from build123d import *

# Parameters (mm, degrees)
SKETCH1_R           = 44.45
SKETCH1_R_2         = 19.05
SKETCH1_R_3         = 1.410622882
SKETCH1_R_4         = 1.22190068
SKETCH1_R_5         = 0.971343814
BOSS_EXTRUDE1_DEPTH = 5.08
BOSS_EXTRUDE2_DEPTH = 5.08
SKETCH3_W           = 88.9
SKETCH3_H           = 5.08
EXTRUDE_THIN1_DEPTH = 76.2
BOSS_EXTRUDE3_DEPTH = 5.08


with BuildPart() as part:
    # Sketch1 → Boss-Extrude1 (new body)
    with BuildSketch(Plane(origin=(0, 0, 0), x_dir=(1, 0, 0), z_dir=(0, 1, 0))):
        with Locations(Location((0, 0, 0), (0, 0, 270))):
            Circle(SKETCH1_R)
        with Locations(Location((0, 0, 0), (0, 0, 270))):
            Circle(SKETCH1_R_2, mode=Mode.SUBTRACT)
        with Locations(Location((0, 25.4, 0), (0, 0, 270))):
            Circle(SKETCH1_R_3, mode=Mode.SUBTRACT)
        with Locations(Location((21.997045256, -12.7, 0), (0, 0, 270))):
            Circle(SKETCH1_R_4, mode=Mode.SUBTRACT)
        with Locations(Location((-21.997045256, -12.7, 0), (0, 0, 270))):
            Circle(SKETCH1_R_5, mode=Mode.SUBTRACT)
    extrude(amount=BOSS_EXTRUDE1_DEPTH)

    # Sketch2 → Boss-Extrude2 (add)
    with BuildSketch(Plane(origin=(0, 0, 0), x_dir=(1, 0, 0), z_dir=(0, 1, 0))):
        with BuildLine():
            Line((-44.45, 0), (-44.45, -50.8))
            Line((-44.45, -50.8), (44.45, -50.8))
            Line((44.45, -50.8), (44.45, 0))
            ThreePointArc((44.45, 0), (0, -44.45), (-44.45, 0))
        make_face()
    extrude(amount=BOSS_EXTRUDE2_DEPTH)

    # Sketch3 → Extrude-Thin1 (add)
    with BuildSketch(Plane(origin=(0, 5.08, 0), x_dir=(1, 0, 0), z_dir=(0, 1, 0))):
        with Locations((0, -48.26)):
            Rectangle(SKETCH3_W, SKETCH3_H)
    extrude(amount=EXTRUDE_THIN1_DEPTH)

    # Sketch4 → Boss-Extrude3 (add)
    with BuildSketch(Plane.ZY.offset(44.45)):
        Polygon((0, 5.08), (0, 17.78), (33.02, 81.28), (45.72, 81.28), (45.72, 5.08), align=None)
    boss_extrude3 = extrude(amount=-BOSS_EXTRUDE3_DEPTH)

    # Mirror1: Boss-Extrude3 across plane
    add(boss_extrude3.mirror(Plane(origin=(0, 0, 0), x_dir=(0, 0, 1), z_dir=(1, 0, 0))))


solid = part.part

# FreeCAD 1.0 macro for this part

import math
import FreeCAD as App
import Part
import Sketcher
Q = App.Units.Quantity


def add_polygon(sketch, points):
    """Adds a closed chain of lines whose ends are joined by coincident constraints."""
    first, n = sketch.GeometryCount, len(points)
    for a, b in zip(points, points[1:] + points[:1]):
        sketch.addGeometry(Part.LineSegment(App.Vector(*a, 0), App.Vector(*b, 0)), False)
    for i in range(n):
        sketch.addConstraint(Sketcher.Constraint("Coincident", first + i, 2, first + (i + 1) % n, 1))

doc = App.newDocument("Part")
params = doc.addObject("Spreadsheet::Sheet", "Params")
for row, (alias, value) in enumerate([
    ("sketch1_diameter", "3.5 in"),
    ("sketch1_diameter2", "1.5 in"),
    ("pad1_length", "0.2 in"),
    ("sketch2_height", "2 in"),
    ("sketch2_radius", "1.75 in"),
    ("pad2_length", "0.2 in"),
    ("sketch3_width", "3.5 in"),
    ("sketch3_height", "0.2 in"),
    ("pad3_length", "3 in"),
    ("sketch4_width", "3 in"),
    ("sketch4_width2", "0.5 in"),
    ("sketch4_height", "1.8 in"),
    ("pad4_length", "0.2 in"),
], start=1):
    params.set(f"A{row}", alias)
    params.set(f"B{row}", "=" + value)
    params.setAlias(f"B{row}", alias)

body = doc.addObject("PartDesign::Body", "Body")

sketch1 = body.newObject("Sketcher::SketchObject", "Sketch")
sketch1.AttachmentSupport = (doc.getObject("XZ_Plane"), [""])
sketch1.MapMode = "FlatFace"
sketch1.addGeometry(Part.Circle(App.Vector(0, 0, 0), App.Vector(0, 0, 1), 44.5), False)
sketch1.addGeometry(Part.Circle(App.Vector(0, -25.4, 0), App.Vector(0, 0, 1), 1.4), False)
sketch1.addGeometry(Part.Circle(App.Vector(-22, 12.7, 0), App.Vector(0, 0, 1), 1), False)
sketch1.addGeometry(Part.Circle(App.Vector(0, 0, 0), App.Vector(0, 0, 1), 19.1), False)
sketch1.addGeometry(Part.Circle(App.Vector(22, 12.7, 0), App.Vector(0, 0, 1), 1.2), False)
sketch1.addConstraint(Sketcher.Constraint("Coincident", 0, 3, -1, 1))
sketch1.addConstraint(Sketcher.Constraint("Coincident", 3, 3, -1, 1))
sketch1.addConstraint(Sketcher.Constraint("Symmetric", 2, 3, 4, 3, -2))
sketch1.addConstraint(Sketcher.Constraint("PointOnObject", 1, 3, -2))
sketch1.addConstraint(Sketcher.Constraint("Diameter", 0, Q("3.5 in")))
sketch1.addConstraint(Sketcher.Constraint("Diameter", 3, Q("1.5 in")))
sketch1.addConstraint(Sketcher.Constraint("DistanceY", 1, 3, -1, 1, Q("1 in")))
sketch1.addConstraint(Sketcher.Constraint("DistanceY", -1, 1, 2, 3, Q("0.5 in")))
sketch1.addConstraint(Sketcher.Constraint("Diameter", 4, 2.443801))
sketch1.addConstraint(Sketcher.Constraint("Diameter", 1, 2.821246))
sketch1.addConstraint(Sketcher.Constraint("Diameter", 2, 1.942688))
sketch1.addConstraint(Sketcher.Constraint("DistanceX", 2, 3, 4, 3, 43.994091))
sketch1.setExpression("Constraints[4]", "Params.sketch1_diameter")
sketch1.setExpression("Constraints[5]", "Params.sketch1_diameter2")
pad1 = body.newObject("PartDesign::Pad", "Pad")
pad1.Profile = sketch1
pad1.setExpression("Length", "Params.pad1_length")
pad1.Reversed = True

sketch2 = body.newObject("Sketcher::SketchObject", "Sketch001")
sketch2.AttachmentSupport = (doc.getObject("XZ_Plane"), [""])
sketch2.MapMode = "FlatFace"
sketch2.addGeometry(Part.LineSegment(App.Vector(-44, 0, 0), App.Vector(-44, 51, 0)), False)
sketch2.addGeometry(Part.LineSegment(App.Vector(-44, 51, 0), App.Vector(44, 51, 0)), False)
sketch2.addGeometry(Part.LineSegment(App.Vector(44, 51, 0), App.Vector(44, 0, 0)), False)
sketch2.addGeometry(Part.ArcOfCircle(Part.Circle(App.Vector(0, 0, 0), App.Vector(0, 0, 1), 44), math.radians(0), math.radians(180)), False)
sketch2.addConstraint(Sketcher.Constraint("Coincident", 0, 2, 1, 1))
sketch2.addConstraint(Sketcher.Constraint("Coincident", 1, 2, 2, 1))
sketch2.addConstraint(Sketcher.Constraint("Tangent", 2, 2, 3, 1))
sketch2.addConstraint(Sketcher.Constraint("Tangent", 3, 2, 0, 1))
sketch2.addConstraint(Sketcher.Constraint("Vertical", 0))
sketch2.addConstraint(Sketcher.Constraint("Horizontal", 1))
sketch2.addConstraint(Sketcher.Constraint("Vertical", 2))
sketch2.addConstraint(Sketcher.Constraint("Coincident", 3, 3, -1, 1))
sketch2.addConstraint(Sketcher.Constraint("DistanceY", 0, 1, 0, 2, Q("2 in")))
sketch2.addConstraint(Sketcher.Constraint("Radius", 3, Q("1.75 in")))
sketch2.setExpression("Constraints[8]", "Params.sketch2_height")
sketch2.setExpression("Constraints[9]", "Params.sketch2_radius")
pad2 = body.newObject("PartDesign::Pad", "Pad001")
pad2.Profile = sketch2
pad2.setExpression("Length", "Params.pad2_length")
pad2.Reversed = True

sketch3 = body.newObject("Sketcher::SketchObject", "Sketch002")
sketch3.AttachmentSupport = (doc.getObject("XZ_Plane"), [""])
sketch3.MapMode = "FlatFace"
sketch3.AttachmentOffset = App.Placement(App.Vector(0, 0, -0.2 * 25.4), App.Rotation())
add_polygon(sketch3, [(-44, 46), (-44, 51), (44, 51), (44, 46)])
sketch3.addConstraint(Sketcher.Constraint("Vertical", 0))
sketch3.addConstraint(Sketcher.Constraint("Horizontal", 1))
sketch3.addConstraint(Sketcher.Constraint("Vertical", 2))
sketch3.addConstraint(Sketcher.Constraint("Horizontal", 3))
sketch3.addConstraint(Sketcher.Constraint("DistanceX", 1, 1, 1, 2, Q("3.5 in")))
sketch3.addConstraint(Sketcher.Constraint("DistanceY", 0, 1, 0, 2, Q("0.2 in")))
sketch3.addConstraint(Sketcher.Constraint("DistanceY", -1, 1, 0, 2, Q("2 in")))
sketch3.addConstraint(Sketcher.Constraint("DistanceX", 0, 2, -1, 1, Q("1.75 in")))
sketch3.setExpression("Constraints[8]", "Params.sketch3_width")
sketch3.setExpression("Constraints[9]", "Params.sketch3_height")
pad3 = body.newObject("PartDesign::Pad", "Pad002")
pad3.Profile = sketch3
pad3.setExpression("Length", "Params.pad3_length")
pad3.Reversed = True

sketch4 = body.newObject("Sketcher::SketchObject", "Sketch003")
sketch4.AttachmentSupport = (doc.getObject("YZ_Plane"), [""])
sketch4.MapMode = "FlatFace"
sketch4.AttachmentOffset = App.Placement(App.Vector(0, 0, -1.75 * 25.4), App.Rotation())
add_polygon(sketch4, [(18, 0), (5, 0), (5, 46), (81, 46), (81, 33)])
sketch4.addConstraint(Sketcher.Constraint("Horizontal", 0))
sketch4.addConstraint(Sketcher.Constraint("Vertical", 1))
sketch4.addConstraint(Sketcher.Constraint("Horizontal", 2))
sketch4.addConstraint(Sketcher.Constraint("Vertical", 3))
sketch4.addConstraint(Sketcher.Constraint("PointOnObject", 0, 2, -1))
sketch4.addConstraint(Sketcher.Constraint("Equal", 0, 3))
sketch4.addConstraint(Sketcher.Constraint("DistanceX", 2, 1, 2, 2, Q("3 in")))
sketch4.addConstraint(Sketcher.Constraint("DistanceX", 0, 2, 0, 1, Q("0.5 in")))
sketch4.addConstraint(Sketcher.Constraint("DistanceY", 1, 1, 1, 2, Q("1.8 in")))
sketch4.addConstraint(Sketcher.Constraint("DistanceX", -1, 1, 0, 2, Q("0.2 in")))
sketch4.setExpression("Constraints[11]", "Params.sketch4_width")
sketch4.setExpression("Constraints[12]", "Params.sketch4_width2")
sketch4.setExpression("Constraints[13]", "Params.sketch4_height")
pad4 = body.newObject("PartDesign::Pad", "Pad003")
pad4.Profile = sketch4
pad4.setExpression("Length", "Params.pad4_length")
doc.recompute()

mirrored = body.newObject("PartDesign::Mirrored", "Mirrored")
mirrored.Originals = [pad4]
mirrored.MirrorPlane = (doc.getObject("YZ_Plane"), [""])
body.Tip = mirrored

doc.recompute()
